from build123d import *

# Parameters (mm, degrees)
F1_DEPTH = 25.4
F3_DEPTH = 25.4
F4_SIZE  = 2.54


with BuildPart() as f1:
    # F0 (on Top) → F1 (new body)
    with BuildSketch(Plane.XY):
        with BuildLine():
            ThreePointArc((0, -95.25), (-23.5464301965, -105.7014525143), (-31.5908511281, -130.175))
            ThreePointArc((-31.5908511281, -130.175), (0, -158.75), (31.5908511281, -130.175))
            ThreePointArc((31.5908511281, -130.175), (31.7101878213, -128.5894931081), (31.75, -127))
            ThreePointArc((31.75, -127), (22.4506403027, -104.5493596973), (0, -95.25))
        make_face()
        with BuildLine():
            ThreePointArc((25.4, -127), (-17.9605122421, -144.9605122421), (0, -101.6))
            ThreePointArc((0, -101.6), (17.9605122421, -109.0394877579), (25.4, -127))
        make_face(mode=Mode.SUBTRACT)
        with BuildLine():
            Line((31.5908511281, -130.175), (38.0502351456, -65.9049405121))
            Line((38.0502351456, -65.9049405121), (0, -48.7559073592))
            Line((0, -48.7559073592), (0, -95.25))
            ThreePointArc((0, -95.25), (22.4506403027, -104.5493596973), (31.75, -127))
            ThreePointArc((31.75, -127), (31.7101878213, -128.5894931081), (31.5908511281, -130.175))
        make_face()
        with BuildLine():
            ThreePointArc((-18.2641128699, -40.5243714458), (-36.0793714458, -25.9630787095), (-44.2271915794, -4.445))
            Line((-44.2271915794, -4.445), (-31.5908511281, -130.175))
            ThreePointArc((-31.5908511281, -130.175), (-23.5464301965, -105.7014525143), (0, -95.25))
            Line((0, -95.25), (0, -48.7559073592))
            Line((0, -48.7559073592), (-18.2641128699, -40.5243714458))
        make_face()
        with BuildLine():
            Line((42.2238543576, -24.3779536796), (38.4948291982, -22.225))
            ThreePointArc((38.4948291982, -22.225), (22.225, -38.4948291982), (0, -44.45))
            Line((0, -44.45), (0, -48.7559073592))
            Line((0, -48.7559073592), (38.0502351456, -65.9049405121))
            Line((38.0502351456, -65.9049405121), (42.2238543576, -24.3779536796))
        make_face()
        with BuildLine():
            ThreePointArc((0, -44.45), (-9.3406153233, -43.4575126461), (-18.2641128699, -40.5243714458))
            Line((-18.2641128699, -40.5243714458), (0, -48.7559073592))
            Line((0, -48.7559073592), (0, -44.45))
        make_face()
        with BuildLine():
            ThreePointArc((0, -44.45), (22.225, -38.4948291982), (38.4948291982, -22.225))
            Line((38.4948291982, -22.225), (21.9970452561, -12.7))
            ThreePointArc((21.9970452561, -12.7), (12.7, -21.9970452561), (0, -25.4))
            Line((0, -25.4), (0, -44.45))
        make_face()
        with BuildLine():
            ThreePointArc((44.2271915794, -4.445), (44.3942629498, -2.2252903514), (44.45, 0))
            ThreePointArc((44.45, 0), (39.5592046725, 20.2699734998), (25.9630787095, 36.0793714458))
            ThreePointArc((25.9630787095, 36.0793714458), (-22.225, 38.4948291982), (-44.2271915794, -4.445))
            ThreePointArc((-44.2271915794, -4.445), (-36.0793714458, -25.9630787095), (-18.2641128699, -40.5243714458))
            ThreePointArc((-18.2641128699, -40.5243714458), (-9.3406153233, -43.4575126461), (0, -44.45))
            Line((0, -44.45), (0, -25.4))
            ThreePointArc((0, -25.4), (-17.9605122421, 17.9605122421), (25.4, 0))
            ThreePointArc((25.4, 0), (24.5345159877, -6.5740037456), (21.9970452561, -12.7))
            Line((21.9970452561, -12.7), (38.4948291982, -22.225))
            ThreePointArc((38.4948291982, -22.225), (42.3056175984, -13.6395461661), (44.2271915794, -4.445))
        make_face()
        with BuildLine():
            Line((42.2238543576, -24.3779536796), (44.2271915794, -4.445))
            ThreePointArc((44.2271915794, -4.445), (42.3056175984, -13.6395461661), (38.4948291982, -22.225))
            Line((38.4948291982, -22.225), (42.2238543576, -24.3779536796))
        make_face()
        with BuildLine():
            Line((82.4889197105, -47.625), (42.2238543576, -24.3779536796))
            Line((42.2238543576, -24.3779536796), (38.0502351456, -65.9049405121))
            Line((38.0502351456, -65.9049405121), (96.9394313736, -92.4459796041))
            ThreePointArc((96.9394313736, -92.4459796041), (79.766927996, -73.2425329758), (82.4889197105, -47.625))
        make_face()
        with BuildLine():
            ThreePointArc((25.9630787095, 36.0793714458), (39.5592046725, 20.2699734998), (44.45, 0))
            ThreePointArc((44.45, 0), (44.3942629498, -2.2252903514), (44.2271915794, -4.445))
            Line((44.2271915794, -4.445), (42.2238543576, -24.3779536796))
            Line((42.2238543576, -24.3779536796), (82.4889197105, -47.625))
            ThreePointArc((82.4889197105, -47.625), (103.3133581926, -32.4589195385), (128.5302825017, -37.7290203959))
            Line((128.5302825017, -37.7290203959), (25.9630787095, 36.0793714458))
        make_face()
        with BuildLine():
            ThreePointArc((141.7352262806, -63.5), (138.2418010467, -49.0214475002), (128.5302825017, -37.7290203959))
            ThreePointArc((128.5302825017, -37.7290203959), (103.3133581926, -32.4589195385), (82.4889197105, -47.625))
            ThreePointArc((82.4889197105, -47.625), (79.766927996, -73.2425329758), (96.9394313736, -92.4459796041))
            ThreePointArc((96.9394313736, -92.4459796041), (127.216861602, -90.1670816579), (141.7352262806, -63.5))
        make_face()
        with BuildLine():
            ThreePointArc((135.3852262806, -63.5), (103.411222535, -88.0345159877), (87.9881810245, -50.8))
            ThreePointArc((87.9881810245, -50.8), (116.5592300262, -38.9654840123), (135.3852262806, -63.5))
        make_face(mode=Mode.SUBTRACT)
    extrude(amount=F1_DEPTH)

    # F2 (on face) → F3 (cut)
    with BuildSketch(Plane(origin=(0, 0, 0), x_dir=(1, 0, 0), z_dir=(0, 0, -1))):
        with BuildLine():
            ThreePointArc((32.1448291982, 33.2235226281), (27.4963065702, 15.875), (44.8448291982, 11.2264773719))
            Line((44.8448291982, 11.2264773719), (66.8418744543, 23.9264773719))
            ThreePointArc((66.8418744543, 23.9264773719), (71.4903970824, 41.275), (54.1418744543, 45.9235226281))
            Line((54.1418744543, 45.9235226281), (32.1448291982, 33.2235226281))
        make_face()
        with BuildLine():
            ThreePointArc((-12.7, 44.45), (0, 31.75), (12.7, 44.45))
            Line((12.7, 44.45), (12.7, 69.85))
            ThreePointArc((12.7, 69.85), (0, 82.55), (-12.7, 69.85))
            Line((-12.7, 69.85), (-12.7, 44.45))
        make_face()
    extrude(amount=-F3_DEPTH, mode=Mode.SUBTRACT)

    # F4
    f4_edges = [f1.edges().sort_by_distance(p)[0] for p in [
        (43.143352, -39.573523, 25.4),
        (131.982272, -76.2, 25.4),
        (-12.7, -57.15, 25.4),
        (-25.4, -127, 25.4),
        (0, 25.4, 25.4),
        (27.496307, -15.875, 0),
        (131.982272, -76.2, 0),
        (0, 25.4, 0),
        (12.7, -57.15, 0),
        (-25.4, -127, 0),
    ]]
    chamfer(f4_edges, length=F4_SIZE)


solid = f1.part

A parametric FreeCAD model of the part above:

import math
import FreeCAD as App
import Part
import Sketcher

V = App.Vector
Q = App.Units.Quantity


def edges_at(feature, points):
    """Names of the edges that pass closest to the given points."""
    edges = feature.Shape.Edges
    near = lambda p: min(range(len(edges)), key=lambda i: edges[i].distToShape(Part.Vertex(*p))[0])
    return sorted({f"Edge{near(p) + 1}" for p in points})

doc = App.newDocument("Part")
body = doc.addObject("PartDesign::Body", "Body")

# Sketch on XY plane
sketch1 = body.newObject("Sketcher::SketchObject", "Sketch")
sketch1.AttachmentSupport = (doc.getObject("XY_Plane"), [""])
sketch1.MapMode = "FlatFace"
sketch1.addGeometry([
    Part.ArcOfCircle(Part.Circle(V(0, -127, 0), V(0, 0, 1), 32), math.radians(-174), math.radians(-6)),  # 0
    Part.LineSegment(V(32, -130, 0), V(38, -66, 0)),  # 1
    Part.LineSegment(V(38, -66, 0), V(97, -92, 0)),  # 2
    Part.ArcOfCircle(Part.Circle(V(110, -64, 0), V(0, 0, 1), 32), math.radians(-114), math.radians(0)),  # 3
    Part.ArcOfCircle(Part.Circle(V(110, -64, 0), V(0, 0, 1), 32), math.radians(0), math.radians(54)),  # 4
    Part.LineSegment(V(129, -38, 0), V(26, 36, 0)),  # 5
    Part.ArcOfCircle(Part.Circle(V(0, 0, 0), V(0, 0, 1), 44), math.radians(54), math.radians(186)),  # 6
    Part.LineSegment(V(-44, -4, 0), V(-32, -130, 0)),  # 7
    Part.ArcOfCircle(Part.Circle(V(0, -127, 0), V(0, 0, 1), 25), math.radians(0), math.radians(90)),  # 8
    Part.ArcOfCircle(Part.Circle(V(0, -127, 0), V(0, 0, 1), 25), math.radians(90), math.radians(360)),  # 9
    Part.ArcOfCircle(Part.Circle(V(110, -64, 0), V(0, 0, 1), 25), math.radians(0), math.radians(150)),  # 10
    Part.ArcOfCircle(Part.Circle(V(110, -64, 0), V(0, 0, 1), 25), math.radians(150), math.radians(360)),  # 11
    Part.ArcOfCircle(Part.Circle(V(0, 0, 0), V(0, 0, 1), 25), math.radians(-90), math.radians(-30)),  # 12
    Part.ArcOfCircle(Part.Circle(V(0, 0, 0), V(0, 0, 1), 25), math.radians(0), math.radians(270)),  # 13
    Part.ArcOfCircle(Part.Circle(V(0, 0, 0), V(0, 0, 1), 25), math.radians(-30), math.radians(0)),  # 14
], False)
sketch1.addConstraint([
    Sketcher.Constraint("Tangent", 0, 2, 1, 1),
    Sketcher.Constraint("Coincident", 1, 2, 2, 1),
    Sketcher.Constraint("Tangent", 2, 2, 3, 1),
    Sketcher.Constraint("Tangent", 3, 2, 4, 1),
    Sketcher.Constraint("Tangent", 4, 2, 5, 1),
    Sketcher.Constraint("Tangent", 5, 2, 6, 1),
    Sketcher.Constraint("Tangent", 6, 2, 7, 1),
    Sketcher.Constraint("Tangent", 7, 2, 0, 1),
    Sketcher.Constraint("Tangent", 8, 1, 9, 2),
    Sketcher.Constraint("Coincident", 9, 1, 8, 2),
    Sketcher.Constraint("Tangent", 10, 1, 11, 2),
    Sketcher.Constraint("Coincident", 11, 1, 10, 2),
    Sketcher.Constraint("Tangent", 12, 1, 13, 2),
    Sketcher.Constraint("Tangent", 13, 1, 14, 2),
    Sketcher.Constraint("Tangent", 14, 1, 12, 2),
    Sketcher.Constraint("Coincident", 6, 3, -1, 1),
    Sketcher.Constraint("Coincident", 12, 3, -1, 1),
    Sketcher.Constraint("Coincident", 8, 3, 0, 3),
    Sketcher.Constraint("Coincident", 10, 3, 3, 3),
    Sketcher.Constraint("Equal", 0, 3),
    Sketcher.Constraint("Equal", 3, 4),
    Sketcher.Constraint("Equal", 9, 10),
    Sketcher.Constraint("Equal", 11, 12),
    Sketcher.Constraint("Symmetric", 0, 2, 7, 2, -2),
    Sketcher.Constraint("PointOnObject", 9, 1, -2),
    Sketcher.Constraint("PointOnObject", 12, 1, -2),
    Sketcher.Constraint("PointOnObject", 13, 1, -1),
    Sketcher.Constraint("Horizontal", 11, 3, 3, 2),
    Sketcher.Constraint("Horizontal", 9, 3, 8, 1),
    Sketcher.Constraint("Horizontal", 3, 2, 10, 1),
    Sketcher.Constraint("Equal", 1, 2),
    Sketcher.Constraint("Equal", 5, 7),
    Sketcher.Constraint("Radius", 8, Q("1 in")),
    Sketcher.Constraint("Radius", 0, Q("1.25 in")),
    Sketcher.Constraint("Radius", 6, Q("1.75 in")),
    Sketcher.Constraint("DistanceY", 0, 3, -1, 1, Q("5 in")),
    Sketcher.Constraint("DistanceY", 11, 1, -1, 1, Q("2 in")),
    Sketcher.Constraint("DistanceY", 3, 3, -1, 1, Q("2.5 in")),
    Sketcher.Constraint("DistanceY", 14, 1, -1, 1, Q("0.5 in")),
])
pad1 = body.newObject("PartDesign::Pad", "Pad")
pad1.Profile = sketch1
pad1.Length = Q("1 in")

# Sketch on XY plane
sketch2 = body.newObject("Sketcher::SketchObject", "Sketch001")
sketch2.AttachmentSupport = (doc.getObject("XY_Plane"), [""])
sketch2.MapMode = "FlatFace"
sketch2.addGeometry([
    Part.ArcOfCircle(Part.Circle(V(38, -22, 0), V(0, 0, 1), 13), math.radians(60), math.radians(240)),  # 0
    Part.LineSegment(V(45, -11, 0), V(67, -24, 0)),  # 1
    Part.ArcOfCircle(Part.Circle(V(60, -35, 0), V(0, 0, 1), 13), math.radians(-120), math.radians(60)),  # 2
    Part.LineSegment(V(54, -46, 0), V(32, -33, 0)),  # 3
    Part.ArcOfCircle(Part.Circle(V(0, -44, 0), V(0, 0, 1), 13), math.radians(0), math.radians(180)),  # 4
    Part.LineSegment(V(13, -44, 0), V(13, -70, 0)),  # 5
    Part.ArcOfCircle(Part.Circle(V(0, -70, 0), V(0, 0, 1), 13), math.radians(180), math.radians(360)),  # 6
    Part.LineSegment(V(-13, -70, 0), V(-13, -44, 0)),  # 7
], False)
sketch2.addConstraint([
    Sketcher.Constraint("Tangent", 0, 1, 1, 1),
    Sketcher.Constraint("Tangent", 1, 2, 2, 2),
    Sketcher.Constraint("Tangent", 2, 1, 3, 1),
    Sketcher.Constraint("Tangent", 3, 2, 0, 2),
    Sketcher.Constraint("Tangent", 4, 1, 5, 1),
    Sketcher.Constraint("Tangent", 5, 2, 6, 2),
    Sketcher.Constraint("Tangent", 6, 1, 7, 1),
    Sketcher.Constraint("Tangent", 7, 2, 4, 2),
    Sketcher.Constraint("Vertical", 5),
    Sketcher.Constraint("Vertical", 7),
    Sketcher.Constraint("Equal", 0, 2),
    Sketcher.Constraint("Equal", 2, 4),
    Sketcher.Constraint("PointOnObject", 4, 3, -2),
    Sketcher.Constraint("Radius", 0, Q("0.5 in")),
    Sketcher.Constraint("DistanceY", 5, 2, 5, 1, Q("1 in")),
    Sketcher.Constraint("Distance", 1, Q("1 in")),
    Sketcher.Constraint("Angle", 1, Q("-30 deg")),
    Sketcher.Constraint("DistanceY", 4, 3, -1, 1, Q("1.75 in")),
    Sketcher.Constraint("DistanceY", 0, 3, -1, 1, Q("0.875 in")),
    Sketcher.Constraint("DistanceX", -1, 1, 0, 3, 38.494829),
])
pocket1 = body.newObject("PartDesign::Pocket", "Pocket")
pocket1.Profile = sketch2
pocket1.Length = Q("1 in")
pocket1.Reversed = True
doc.recompute()

chamfer = body.newObject("PartDesign::Chamfer", "Chamfer")
chamfer.Base = (pocket1, edges_at(pocket1, [
    (43.143, -39.574, 25.4),
    (103.411, -88.035, 25.4),
    (-12.7, -57.15, 25.4),
    (-17.961, -144.961, 25.4),
    (-17.961, 17.961, 25.4),
    (27.496, -15.875, 0),
    (103.411, -88.035, 0),
    (-17.961, 17.961, 0),
    (12.7, -57.15, 0),
    (-17.961, -144.961, 0),
]))
chamfer.Size = Q("0.1 in")

doc.recompute()
